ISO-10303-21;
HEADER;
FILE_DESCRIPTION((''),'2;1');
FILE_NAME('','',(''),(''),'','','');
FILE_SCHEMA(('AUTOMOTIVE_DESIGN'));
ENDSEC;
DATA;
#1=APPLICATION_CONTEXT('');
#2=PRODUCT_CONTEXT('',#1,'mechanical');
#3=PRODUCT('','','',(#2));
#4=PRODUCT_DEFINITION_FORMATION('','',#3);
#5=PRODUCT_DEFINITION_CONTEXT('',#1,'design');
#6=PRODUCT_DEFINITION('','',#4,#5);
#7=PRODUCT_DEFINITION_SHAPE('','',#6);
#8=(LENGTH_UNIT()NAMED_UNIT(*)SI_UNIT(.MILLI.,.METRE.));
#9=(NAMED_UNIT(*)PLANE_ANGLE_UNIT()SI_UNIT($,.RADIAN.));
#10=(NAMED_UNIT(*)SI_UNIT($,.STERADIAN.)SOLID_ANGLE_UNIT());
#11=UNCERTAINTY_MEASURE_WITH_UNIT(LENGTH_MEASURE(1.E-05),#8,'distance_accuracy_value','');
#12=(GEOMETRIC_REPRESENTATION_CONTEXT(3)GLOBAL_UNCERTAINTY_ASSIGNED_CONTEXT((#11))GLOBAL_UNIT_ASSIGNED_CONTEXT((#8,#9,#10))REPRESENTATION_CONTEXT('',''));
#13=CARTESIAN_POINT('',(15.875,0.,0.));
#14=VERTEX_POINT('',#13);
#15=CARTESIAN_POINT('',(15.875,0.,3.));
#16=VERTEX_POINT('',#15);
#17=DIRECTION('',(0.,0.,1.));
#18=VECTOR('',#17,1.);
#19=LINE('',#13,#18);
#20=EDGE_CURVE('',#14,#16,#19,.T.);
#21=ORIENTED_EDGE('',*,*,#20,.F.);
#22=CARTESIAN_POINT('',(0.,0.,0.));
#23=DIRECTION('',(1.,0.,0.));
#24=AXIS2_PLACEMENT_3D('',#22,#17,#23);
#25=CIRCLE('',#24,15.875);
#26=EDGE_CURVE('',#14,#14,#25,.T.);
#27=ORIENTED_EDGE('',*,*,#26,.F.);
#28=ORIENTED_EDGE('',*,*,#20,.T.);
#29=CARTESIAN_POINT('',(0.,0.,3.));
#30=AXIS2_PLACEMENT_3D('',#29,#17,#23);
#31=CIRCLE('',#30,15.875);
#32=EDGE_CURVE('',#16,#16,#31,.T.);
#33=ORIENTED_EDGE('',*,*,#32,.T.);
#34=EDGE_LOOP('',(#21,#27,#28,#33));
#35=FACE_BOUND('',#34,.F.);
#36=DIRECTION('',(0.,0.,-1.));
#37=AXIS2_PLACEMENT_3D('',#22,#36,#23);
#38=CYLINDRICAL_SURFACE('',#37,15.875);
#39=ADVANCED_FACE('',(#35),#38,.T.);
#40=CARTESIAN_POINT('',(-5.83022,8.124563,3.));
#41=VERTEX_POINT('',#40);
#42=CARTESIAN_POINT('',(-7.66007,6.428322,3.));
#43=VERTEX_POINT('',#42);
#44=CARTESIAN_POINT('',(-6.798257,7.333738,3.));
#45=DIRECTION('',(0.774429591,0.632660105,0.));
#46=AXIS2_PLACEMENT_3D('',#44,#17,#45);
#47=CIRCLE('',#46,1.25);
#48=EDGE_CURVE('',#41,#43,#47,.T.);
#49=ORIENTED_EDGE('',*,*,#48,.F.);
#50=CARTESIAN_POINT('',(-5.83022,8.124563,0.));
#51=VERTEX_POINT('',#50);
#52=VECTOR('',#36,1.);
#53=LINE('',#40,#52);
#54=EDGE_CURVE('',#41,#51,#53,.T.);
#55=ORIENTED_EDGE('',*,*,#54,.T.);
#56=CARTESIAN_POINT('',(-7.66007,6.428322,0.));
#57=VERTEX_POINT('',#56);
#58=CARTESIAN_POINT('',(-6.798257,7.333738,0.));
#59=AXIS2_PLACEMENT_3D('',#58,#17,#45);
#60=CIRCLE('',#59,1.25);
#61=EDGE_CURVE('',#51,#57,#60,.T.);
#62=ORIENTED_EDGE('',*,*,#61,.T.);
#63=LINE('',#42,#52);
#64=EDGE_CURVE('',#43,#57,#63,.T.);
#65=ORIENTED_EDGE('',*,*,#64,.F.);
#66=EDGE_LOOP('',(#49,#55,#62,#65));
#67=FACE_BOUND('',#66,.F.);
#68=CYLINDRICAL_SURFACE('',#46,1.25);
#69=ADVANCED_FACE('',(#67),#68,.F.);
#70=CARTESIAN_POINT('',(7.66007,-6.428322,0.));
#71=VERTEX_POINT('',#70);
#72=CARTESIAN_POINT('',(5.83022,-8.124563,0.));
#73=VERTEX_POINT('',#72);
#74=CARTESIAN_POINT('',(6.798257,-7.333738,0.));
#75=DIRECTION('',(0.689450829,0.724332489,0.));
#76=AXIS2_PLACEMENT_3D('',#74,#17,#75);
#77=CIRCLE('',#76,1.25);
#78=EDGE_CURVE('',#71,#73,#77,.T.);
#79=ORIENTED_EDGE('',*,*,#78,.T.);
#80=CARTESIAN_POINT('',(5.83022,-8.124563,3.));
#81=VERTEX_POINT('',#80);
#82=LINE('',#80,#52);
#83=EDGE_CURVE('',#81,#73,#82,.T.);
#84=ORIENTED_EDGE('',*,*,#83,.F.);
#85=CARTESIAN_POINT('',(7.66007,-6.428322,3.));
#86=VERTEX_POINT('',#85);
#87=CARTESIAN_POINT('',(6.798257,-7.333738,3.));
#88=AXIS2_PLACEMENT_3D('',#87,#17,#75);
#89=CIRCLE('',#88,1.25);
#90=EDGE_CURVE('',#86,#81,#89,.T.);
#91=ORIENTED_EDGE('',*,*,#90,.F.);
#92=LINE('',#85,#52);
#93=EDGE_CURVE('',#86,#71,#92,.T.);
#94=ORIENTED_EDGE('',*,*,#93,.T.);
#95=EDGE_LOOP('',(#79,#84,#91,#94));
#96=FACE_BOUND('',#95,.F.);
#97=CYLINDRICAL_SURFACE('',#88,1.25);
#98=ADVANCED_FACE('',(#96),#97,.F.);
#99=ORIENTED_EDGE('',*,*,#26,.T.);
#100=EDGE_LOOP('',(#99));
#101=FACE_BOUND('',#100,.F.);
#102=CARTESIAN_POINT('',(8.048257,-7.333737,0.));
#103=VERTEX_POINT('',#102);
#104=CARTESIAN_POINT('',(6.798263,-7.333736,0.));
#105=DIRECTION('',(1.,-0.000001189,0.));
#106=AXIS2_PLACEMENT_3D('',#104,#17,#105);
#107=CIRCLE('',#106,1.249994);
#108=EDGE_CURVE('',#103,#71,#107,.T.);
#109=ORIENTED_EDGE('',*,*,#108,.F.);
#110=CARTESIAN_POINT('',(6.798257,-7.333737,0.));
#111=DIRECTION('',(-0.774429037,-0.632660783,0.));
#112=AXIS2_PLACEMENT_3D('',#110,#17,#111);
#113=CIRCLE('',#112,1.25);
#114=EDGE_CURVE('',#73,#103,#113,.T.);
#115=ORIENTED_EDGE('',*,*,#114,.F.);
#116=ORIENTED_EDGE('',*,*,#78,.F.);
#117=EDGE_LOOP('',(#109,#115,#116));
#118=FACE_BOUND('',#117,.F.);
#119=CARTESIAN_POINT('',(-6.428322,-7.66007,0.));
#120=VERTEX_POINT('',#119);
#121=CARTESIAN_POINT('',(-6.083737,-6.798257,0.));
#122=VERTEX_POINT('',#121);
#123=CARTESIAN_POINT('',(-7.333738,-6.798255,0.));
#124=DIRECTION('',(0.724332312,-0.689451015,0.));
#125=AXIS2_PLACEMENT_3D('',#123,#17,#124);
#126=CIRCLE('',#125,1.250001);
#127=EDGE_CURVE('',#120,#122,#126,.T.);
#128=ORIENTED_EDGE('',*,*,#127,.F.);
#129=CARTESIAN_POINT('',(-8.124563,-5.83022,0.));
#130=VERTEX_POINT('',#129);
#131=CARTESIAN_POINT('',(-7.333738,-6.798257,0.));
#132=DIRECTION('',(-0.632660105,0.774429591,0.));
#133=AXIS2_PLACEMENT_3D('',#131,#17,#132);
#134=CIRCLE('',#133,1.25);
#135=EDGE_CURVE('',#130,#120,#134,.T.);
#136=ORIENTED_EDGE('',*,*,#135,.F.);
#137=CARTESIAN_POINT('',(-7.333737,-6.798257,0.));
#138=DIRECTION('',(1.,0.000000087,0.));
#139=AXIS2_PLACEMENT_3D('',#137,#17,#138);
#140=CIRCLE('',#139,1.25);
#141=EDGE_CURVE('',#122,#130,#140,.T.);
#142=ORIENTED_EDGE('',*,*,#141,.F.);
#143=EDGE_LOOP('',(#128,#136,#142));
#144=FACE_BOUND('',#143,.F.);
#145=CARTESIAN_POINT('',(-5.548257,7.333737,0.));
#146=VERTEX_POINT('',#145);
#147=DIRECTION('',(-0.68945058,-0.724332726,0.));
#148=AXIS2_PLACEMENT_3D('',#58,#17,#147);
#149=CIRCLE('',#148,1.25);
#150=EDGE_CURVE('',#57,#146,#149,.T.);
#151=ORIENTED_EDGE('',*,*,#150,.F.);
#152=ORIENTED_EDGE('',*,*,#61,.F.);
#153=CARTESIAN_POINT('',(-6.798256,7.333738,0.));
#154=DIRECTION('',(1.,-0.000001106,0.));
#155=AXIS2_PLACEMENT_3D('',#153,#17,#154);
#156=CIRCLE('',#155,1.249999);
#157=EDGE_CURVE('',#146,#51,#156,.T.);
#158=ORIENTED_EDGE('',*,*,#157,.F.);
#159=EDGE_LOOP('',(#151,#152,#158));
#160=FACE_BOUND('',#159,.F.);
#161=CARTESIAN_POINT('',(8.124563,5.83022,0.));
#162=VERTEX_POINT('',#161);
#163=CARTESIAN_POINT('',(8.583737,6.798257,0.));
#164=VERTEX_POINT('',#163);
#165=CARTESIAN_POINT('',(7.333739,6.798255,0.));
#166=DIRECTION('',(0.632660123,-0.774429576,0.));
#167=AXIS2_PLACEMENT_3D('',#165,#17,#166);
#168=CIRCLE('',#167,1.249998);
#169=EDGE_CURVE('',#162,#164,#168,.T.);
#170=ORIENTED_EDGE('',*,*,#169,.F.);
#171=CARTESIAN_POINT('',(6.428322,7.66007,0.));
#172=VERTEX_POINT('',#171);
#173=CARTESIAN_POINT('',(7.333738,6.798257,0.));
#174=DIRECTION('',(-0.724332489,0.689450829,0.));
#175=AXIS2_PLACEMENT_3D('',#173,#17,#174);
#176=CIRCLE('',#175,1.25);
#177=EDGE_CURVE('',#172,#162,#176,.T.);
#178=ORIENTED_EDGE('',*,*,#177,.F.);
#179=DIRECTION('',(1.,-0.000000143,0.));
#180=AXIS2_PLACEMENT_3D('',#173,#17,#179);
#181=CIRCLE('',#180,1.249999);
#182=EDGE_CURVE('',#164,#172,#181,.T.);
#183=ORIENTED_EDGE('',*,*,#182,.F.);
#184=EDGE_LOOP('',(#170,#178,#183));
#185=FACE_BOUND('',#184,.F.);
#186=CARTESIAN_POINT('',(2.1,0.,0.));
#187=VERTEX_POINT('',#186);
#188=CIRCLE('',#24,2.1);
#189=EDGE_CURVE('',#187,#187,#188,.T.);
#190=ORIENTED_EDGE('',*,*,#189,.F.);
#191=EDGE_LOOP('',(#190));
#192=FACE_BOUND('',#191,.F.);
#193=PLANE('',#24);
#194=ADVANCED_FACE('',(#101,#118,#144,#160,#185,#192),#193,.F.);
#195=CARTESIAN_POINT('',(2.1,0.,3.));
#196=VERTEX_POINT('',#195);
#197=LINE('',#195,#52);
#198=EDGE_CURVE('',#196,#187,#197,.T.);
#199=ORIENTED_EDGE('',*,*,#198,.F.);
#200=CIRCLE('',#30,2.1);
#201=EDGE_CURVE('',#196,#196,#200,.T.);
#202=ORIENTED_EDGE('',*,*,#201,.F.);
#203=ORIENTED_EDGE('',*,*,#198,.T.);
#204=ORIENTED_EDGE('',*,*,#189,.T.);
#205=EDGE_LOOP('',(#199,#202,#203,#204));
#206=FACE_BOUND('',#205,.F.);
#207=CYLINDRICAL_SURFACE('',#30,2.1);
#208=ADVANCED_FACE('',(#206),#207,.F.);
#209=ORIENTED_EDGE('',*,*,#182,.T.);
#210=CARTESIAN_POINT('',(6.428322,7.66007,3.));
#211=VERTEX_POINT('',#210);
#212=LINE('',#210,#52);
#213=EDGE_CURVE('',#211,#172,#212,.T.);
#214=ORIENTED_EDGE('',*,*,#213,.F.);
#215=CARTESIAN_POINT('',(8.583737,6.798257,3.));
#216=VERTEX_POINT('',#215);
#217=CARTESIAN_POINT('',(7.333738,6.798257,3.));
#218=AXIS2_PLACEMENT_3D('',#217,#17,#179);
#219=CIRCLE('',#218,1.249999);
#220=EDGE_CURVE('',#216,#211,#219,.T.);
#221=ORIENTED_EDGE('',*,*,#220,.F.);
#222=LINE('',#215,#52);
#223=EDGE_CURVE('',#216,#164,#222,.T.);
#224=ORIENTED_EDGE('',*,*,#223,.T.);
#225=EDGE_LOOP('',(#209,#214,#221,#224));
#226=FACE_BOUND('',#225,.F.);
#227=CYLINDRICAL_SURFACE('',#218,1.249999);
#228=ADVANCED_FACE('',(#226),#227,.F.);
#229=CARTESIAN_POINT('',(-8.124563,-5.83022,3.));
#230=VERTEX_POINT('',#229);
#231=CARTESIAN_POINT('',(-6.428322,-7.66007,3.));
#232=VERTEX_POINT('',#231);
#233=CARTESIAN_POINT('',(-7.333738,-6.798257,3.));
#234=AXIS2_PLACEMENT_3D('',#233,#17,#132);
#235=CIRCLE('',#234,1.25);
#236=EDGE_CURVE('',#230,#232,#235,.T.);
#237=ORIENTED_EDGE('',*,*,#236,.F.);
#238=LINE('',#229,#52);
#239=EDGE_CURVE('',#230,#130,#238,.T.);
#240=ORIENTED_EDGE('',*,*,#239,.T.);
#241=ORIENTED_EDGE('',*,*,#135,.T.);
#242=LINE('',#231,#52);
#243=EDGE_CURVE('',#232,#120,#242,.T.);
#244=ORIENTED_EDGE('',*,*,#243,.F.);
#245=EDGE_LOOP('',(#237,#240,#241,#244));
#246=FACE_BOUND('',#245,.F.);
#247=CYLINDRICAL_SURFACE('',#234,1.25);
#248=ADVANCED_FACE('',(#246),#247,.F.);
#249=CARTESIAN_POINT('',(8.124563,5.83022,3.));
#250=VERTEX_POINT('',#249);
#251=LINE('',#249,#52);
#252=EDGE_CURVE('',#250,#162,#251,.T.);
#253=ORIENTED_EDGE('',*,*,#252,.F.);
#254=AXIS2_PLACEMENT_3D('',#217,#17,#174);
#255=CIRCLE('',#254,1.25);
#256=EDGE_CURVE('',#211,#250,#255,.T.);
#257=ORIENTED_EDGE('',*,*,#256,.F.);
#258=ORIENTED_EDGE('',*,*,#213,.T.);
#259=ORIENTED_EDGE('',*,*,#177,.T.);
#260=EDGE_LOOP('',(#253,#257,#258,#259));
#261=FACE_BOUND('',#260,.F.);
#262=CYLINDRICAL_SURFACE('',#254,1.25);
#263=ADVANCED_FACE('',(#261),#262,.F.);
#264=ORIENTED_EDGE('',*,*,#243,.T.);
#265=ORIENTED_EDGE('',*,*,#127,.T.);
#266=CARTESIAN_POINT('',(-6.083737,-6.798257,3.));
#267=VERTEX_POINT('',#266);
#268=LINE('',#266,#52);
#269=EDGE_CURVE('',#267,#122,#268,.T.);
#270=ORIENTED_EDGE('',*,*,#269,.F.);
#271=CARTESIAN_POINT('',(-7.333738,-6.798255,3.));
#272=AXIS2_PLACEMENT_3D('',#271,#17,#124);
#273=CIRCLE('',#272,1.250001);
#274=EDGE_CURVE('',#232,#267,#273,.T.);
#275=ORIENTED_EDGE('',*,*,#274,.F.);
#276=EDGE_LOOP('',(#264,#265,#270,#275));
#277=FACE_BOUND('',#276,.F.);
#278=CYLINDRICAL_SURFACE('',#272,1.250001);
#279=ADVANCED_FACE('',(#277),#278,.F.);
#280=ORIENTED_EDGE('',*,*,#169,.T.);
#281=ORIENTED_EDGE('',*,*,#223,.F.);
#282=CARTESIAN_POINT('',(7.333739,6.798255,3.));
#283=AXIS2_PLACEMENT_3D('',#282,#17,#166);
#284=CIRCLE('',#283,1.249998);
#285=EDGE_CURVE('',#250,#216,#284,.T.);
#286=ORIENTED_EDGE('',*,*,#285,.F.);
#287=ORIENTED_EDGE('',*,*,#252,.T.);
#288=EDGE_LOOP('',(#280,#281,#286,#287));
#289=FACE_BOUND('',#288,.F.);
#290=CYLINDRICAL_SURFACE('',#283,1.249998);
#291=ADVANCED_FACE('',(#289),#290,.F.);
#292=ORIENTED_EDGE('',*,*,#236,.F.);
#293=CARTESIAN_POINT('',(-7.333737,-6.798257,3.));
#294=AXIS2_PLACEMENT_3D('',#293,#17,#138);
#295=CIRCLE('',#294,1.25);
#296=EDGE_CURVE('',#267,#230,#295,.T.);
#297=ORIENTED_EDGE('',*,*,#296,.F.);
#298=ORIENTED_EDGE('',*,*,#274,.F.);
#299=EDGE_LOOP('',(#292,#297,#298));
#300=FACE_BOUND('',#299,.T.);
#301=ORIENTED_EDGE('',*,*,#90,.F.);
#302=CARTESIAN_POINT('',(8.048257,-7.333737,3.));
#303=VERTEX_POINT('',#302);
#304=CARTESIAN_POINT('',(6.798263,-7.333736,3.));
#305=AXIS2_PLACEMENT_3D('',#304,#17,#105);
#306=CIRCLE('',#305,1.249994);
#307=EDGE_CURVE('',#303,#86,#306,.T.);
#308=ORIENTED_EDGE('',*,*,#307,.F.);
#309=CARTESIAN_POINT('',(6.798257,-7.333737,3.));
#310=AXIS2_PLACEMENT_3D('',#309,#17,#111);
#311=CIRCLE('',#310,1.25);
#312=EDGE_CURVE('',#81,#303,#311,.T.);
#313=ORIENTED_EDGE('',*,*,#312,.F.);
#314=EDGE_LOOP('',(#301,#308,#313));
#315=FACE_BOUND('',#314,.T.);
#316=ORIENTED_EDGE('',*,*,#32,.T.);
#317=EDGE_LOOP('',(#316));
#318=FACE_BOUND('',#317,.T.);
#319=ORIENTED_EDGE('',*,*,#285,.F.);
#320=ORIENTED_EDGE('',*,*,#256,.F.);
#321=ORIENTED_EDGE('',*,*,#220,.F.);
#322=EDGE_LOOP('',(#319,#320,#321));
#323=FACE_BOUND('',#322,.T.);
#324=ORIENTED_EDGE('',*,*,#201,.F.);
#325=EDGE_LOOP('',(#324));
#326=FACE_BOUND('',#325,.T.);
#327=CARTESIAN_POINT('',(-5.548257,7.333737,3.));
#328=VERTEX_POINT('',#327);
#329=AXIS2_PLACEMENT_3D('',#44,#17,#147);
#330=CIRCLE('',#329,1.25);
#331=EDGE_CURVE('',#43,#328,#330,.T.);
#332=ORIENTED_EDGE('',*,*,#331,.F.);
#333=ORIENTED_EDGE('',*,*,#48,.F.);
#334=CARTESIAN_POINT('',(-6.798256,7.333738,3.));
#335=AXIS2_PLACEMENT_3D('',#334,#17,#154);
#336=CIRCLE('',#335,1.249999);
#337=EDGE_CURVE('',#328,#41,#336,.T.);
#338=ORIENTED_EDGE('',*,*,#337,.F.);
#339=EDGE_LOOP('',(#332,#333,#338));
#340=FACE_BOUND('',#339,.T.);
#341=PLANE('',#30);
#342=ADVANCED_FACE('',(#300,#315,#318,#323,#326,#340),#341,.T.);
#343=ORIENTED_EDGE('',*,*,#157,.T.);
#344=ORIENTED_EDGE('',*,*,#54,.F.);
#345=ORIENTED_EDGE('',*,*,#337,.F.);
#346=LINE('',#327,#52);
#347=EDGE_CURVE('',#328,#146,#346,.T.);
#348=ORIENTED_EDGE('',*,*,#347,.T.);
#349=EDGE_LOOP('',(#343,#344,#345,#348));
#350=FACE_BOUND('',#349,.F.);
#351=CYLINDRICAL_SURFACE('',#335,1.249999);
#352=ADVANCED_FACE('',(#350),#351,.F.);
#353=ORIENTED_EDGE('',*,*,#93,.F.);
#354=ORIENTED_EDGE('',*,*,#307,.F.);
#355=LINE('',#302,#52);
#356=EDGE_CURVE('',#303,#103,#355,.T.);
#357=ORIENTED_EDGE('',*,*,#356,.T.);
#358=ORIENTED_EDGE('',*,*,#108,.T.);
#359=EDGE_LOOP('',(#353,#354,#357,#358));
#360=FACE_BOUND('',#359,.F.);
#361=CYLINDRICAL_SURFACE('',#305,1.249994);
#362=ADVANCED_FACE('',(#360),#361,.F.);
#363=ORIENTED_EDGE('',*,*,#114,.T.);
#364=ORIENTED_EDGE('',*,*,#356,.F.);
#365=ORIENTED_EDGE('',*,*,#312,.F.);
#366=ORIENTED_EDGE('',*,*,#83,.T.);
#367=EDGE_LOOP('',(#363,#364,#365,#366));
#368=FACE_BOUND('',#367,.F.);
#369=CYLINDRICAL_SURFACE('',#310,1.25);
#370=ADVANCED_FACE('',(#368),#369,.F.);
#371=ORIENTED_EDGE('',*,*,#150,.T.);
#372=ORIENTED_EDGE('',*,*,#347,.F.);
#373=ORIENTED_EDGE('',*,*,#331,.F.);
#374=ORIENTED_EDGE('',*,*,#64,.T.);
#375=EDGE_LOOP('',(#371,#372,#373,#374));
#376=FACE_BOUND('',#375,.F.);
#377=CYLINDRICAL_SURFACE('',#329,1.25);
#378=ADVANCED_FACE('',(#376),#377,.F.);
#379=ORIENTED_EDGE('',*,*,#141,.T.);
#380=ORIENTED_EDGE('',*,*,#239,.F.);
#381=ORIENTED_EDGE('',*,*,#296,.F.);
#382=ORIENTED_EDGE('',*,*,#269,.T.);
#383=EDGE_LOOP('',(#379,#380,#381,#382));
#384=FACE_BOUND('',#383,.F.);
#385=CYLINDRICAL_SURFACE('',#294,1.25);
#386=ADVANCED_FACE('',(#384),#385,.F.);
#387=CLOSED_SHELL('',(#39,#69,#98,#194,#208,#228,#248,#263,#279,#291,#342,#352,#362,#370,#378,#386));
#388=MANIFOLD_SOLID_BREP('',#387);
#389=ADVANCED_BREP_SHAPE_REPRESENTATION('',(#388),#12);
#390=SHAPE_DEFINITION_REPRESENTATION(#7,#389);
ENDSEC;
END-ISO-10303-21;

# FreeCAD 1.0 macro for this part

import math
import FreeCAD as App
import Part
import Sketcher

doc = App.newDocument("Part")
body = doc.addObject("PartDesign::Body", "Body")

sketch1 = body.newObject("Sketcher::SketchObject", "Sketch")
sketch1.AttachmentSupport = (doc.getObject("XY_Plane"), [""])
sketch1.MapMode = "FlatFace"
sketch1.addGeometry(Part.Circle(App.Vector(0, 0, 0), App.Vector(0, 0, 1), 15.875), False)
sketch1.addConstraint(Sketcher.Constraint("Coincident", 0, 3, -1, 1))
sketch1.addConstraint(Sketcher.Constraint("Diameter", 0, 31.75))
pad1 = body.newObject("PartDesign::Pad", "Pad")
pad1.Profile = sketch1
pad1.Length = 3

sketch2 = body.newObject("Sketcher::SketchObject", "Sketch001")
sketch2.AttachmentSupport = (doc.getObject("XY_Plane"), [""])
sketch2.MapMode = "FlatFace"
sketch2.AttachmentOffset = App.Placement(App.Vector(0, 0, 3), App.Rotation())
sketch2.addGeometry(Part.ArcOfCircle(Part.Circle(App.Vector(-6.798257, 7.333738, 0), App.Vector(0, 0, 1), 1.25), math.radians(-133.586633), math.radians(-0.000037)), False)
sketch2.addGeometry(Part.ArcOfCircle(Part.Circle(App.Vector(-6.798256, 7.333738, 0), App.Vector(0, 0, 1), 1.249999), math.radians(-0.000063), math.radians(39.246676)), False)
sketch2.addGeometry(Part.ArcOfCircle(Part.Circle(App.Vector(-6.798257, 7.333738, 0), App.Vector(0, 0, 1), 1.25), math.radians(39.246654), math.radians(226.413372)), False)
sketch2.addGeometry(Part.ArcOfCircle(Part.Circle(App.Vector(7.333738, 6.798257, 0), App.Vector(0, 0, 1), 1.249999), math.radians(-0.000008), math.radians(136.413369)), False)
sketch2.addGeometry(Part.ArcOfCircle(Part.Circle(App.Vector(7.333738, 6.798257, 0), App.Vector(0, 0, 1), 1.25), math.radians(136.413347), math.radians(309.246679)), False)
sketch2.addGeometry(Part.ArcOfCircle(Part.Circle(App.Vector(7.333739, 6.798255, 0), App.Vector(0, 0, 1), 1.249998), math.radians(-50.753345), math.radians(0.000083)), False)
sketch2.addGeometry(Part.ArcOfCircle(Part.Circle(App.Vector(6.798257, -7.333737, 0), App.Vector(0, 0, 1), 1.25), math.radians(-140.753296), math.radians(-0.000011)), False)
sketch2.addGeometry(Part.ArcOfCircle(Part.Circle(App.Vector(6.798263, -7.333736, 0), App.Vector(0, 0, 1), 1.249994), math.radians(-0.000068), math.radians(46.413501)), False)
sketch2.addGeometry(Part.ArcOfCircle(Part.Circle(App.Vector(6.798257, -7.333738, 0), App.Vector(0, 0, 1), 1.25), math.radians(46.413347), math.radians(219.246679)), False)
sketch2.addGeometry(Part.ArcOfCircle(Part.Circle(App.Vector(-7.333738, -6.798257, 0), App.Vector(0, 0, 1), 1.25), math.radians(129.246654), math.radians(316.413372)), False)
sketch2.addGeometry(Part.ArcOfCircle(Part.Circle(App.Vector(-7.333738, -6.798255, 0), App.Vector(0, 0, 1), 1.250001), math.radians(-43.586668), math.radians(-0.00008)), False)
sketch2.addGeometry(Part.ArcOfCircle(Part.Circle(App.Vector(-7.333737, -6.798257, 0), App.Vector(0, 0, 1), 1.25), math.radians(0.000005), math.radians(129.246667)), False)
sketch2.addConstraint(Sketcher.Constraint("Tangent", 0, 2, 1, 1))
sketch2.addConstraint(Sketcher.Constraint("Tangent", 1, 2, 2, 1))
sketch2.addConstraint(Sketcher.Constraint("Tangent", 2, 2, 0, 1))
sketch2.addConstraint(Sketcher.Constraint("Tangent", 3, 2, 4, 1))
sketch2.addConstraint(Sketcher.Constraint("Tangent", 4, 2, 5, 1))
sketch2.addConstraint(Sketcher.Constraint("Tangent", 5, 2, 3, 1))
sketch2.addConstraint(Sketcher.Constraint("Tangent", 6, 2, 7, 1))
sketch2.addConstraint(Sketcher.Constraint("Coincident", 7, 2, 8, 1))
sketch2.addConstraint(Sketcher.Constraint("Tangent", 8, 2, 6, 1))
sketch2.addConstraint(Sketcher.Constraint("Tangent", 9, 2, 10, 1))
sketch2.addConstraint(Sketcher.Constraint("Tangent", 10, 2, 11, 1))
sketch2.addConstraint(Sketcher.Constraint("Tangent", 11, 2, 9, 1))
sketch2.addConstraint(Sketcher.Constraint("Equal", 2, 3))
sketch2.addConstraint(Sketcher.Constraint("Equal", 4, 6))
sketch2.addConstraint(Sketcher.Constraint("Equal", 6, 8))
sketch2.addConstraint(Sketcher.Constraint("Equal", 8, 9))
sketch2.addConstraint(Sketcher.Constraint("Symmetric", 0, 3, 6, 3, -1, 1))
sketch2.addConstraint(Sketcher.Constraint("Symmetric", 3, 3, 9, 3, -1, 1))
sketch2.addConstraint(Sketcher.Constraint("Horizontal", 2, 3, 0, 2))
sketch2.addConstraint(Sketcher.Constraint("Horizontal", 4, 3, 5, 2))
sketch2.addConstraint(Sketcher.Constraint("Horizontal", 8, 3, 6, 2))
sketch2.addConstraint(Sketcher.Constraint("Horizontal", 11, 3, 10, 2))
sketch2.addConstraint(Sketcher.Constraint("Radius", 0, 1.25))
sketch2.addConstraint(Sketcher.Constraint("DistanceX", 7, 3, 4, 2, 1.3263))
sketch2.addConstraint(Sketcher.Constraint("DistanceY", -1, 1, 1, 3, 7.333738))
sketch2.addConstraint(Sketcher.Constraint("DistanceX", -1, 1, 5, 3, 7.333739))
sketch2.addConstraint(Sketcher.Constraint("DistanceX", 1, 2, -1, 1, 5.83022))
sketch2.addConstraint(Sketcher.Constraint("DistanceX", 2, 2, -1, 1, 7.66007))
sketch2.addConstraint(Sketcher.Constraint("DistanceY", -1, 1, 3, 2, 7.66007))
sketch2.addConstraint(Sketcher.Constraint("DistanceY", -1, 1, 4, 2, 5.83022))
sketch2.addConstraint(Sketcher.Constraint("DistanceX", -1, 1, 7, 2, 7.66007))
sketch2.addConstraint(Sketcher.Constraint("DistanceX", -1, 1, 8, 2, 5.83022))
sketch2.addConstraint(Sketcher.Constraint("DistanceY", 9, 2, -1, 1, 7.66007))
sketch2.addConstraint(Sketcher.Constraint("DistanceY", 11, 2, -1, 1, 5.83022))
sketch2.addConstraint(Sketcher.Constraint("DistanceY", 3, 3, 1, 3, 0.535481))
pocket1 = body.newObject("PartDesign::Pocket", "Pocket")
pocket1.Profile = sketch2
pocket1.Length = 5

sketch3 = body.newObject("Sketcher::SketchObject", "Sketch002")
sketch3.AttachmentSupport = (doc.getObject("XY_Plane"), [""])
sketch3.MapMode = "FlatFace"
sketch3.AttachmentOffset = App.Placement(App.Vector(0, 0, 3), App.Rotation())
sketch3.addGeometry(Part.Circle(App.Vector(0, 0, 0), App.Vector(0, 0, 1), 2.1), False)
sketch3.addConstraint(Sketcher.Constraint("Coincident", 0, 3, -1, 1))
sketch3.addConstraint(Sketcher.Constraint("Diameter", 0, 4.2))
pocket2 = body.newObject("PartDesign::Pocket", "Pocket001")
pocket2.Profile = sketch3
pocket2.Type = "ThroughAll"

doc.recompute()
